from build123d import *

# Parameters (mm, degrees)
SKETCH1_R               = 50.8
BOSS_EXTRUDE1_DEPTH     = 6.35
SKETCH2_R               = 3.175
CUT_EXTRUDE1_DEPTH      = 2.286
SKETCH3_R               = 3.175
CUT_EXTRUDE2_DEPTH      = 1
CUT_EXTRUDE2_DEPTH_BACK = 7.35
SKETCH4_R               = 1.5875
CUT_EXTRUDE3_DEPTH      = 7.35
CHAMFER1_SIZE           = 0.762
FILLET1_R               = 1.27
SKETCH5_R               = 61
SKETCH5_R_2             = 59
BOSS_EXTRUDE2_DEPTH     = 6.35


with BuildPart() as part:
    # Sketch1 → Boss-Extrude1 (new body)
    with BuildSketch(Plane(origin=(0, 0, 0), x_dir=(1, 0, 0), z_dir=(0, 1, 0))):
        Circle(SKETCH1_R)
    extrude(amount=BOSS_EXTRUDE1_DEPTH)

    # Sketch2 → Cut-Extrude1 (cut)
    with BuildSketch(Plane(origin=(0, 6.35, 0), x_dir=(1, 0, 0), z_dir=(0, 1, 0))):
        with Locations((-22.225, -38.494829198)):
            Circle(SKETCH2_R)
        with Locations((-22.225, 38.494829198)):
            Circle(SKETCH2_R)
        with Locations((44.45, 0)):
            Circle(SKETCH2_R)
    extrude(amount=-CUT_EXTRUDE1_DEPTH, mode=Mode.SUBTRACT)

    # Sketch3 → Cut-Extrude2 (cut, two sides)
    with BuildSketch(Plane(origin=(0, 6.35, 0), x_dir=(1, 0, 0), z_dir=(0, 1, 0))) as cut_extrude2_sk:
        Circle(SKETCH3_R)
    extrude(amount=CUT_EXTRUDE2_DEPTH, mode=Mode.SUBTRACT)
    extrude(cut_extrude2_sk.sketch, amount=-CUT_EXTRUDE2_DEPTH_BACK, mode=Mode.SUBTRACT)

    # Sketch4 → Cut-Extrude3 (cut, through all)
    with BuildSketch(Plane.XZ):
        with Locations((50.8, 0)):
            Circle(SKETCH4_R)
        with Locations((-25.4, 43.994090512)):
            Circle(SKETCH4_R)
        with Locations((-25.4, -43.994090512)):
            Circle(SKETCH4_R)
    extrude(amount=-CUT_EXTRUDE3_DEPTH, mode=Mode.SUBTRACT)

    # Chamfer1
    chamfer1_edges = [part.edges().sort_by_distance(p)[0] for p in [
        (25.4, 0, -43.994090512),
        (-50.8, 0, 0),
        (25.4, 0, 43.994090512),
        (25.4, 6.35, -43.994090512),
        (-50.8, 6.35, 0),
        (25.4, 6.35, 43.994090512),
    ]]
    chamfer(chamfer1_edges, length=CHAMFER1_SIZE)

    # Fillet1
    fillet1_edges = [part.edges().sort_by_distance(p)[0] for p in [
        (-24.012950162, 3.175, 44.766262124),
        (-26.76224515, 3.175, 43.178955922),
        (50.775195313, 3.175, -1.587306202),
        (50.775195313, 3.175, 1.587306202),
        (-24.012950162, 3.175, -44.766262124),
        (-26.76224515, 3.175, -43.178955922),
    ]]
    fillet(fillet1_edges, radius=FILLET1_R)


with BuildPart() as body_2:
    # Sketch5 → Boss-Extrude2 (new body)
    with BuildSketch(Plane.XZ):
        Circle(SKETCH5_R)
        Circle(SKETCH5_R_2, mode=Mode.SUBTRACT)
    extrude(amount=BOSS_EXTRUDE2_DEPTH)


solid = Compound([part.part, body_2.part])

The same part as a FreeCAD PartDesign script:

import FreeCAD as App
import Part
import Sketcher
Q = App.Units.Quantity


def edges_at(feature, points):
    """Names of the edges that pass closest to the given points."""
    edges = feature.Shape.Edges
    near = lambda p: min(range(len(edges)), key=lambda i: edges[i].distToShape(Part.Vertex(*p))[0])
    return sorted({f"Edge{near(p) + 1}" for p in points})

doc = App.newDocument("Part")
params = doc.addObject("Spreadsheet::Sheet", "Params")
for row, (alias, value) in enumerate([
    ("sketch1_diameter", "4 in"),
    ("pad1_length", "0.25 in"),
    ("sketch2_diameter", "0.25 in"),
    ("pocket1_length", "0.09 in"),
    ("sketch3_diameter", "0.25 in"),
    ("sketch4_diameter", "0.125 in"),
    ("chamfer_size", "0.03 in"),
    ("fillet_radius", "0.05 in"),
    ("pad2_length", "0.25 in"),
], start=1):
    params.set(f"A{row}", alias)
    params.set(f"B{row}", "=" + value)
    params.setAlias(f"B{row}", alias)

body = doc.addObject("PartDesign::Body", "Body")

# Sketch on XZ plane
sketch1 = doc.addObject("Sketcher::SketchObject", "Sketch")
body.addObject(sketch1)
sketch1.AttachmentSupport = (doc.XZ_Plane, [""])
sketch1.MapMode = "FlatFace"
sketch1.addGeometry(Part.Circle(App.Vector(0, 0, 0), App.Vector(0, 0, 1), 51), False)
sketch1.addConstraint([
    Sketcher.Constraint("Coincident", 0, 3, -1, 1),
    Sketcher.Constraint("Diameter", 0, Q("4 in")),
])
sketch1.setExpression("Constraints[1]", "Params.sketch1_diameter")
pad1 = doc.addObject("PartDesign::Pad", "Pad")
body.addObject(pad1)
pad1.Profile = sketch1
pad1.setExpression("Length", "Params.pad1_length")
pad1.Reversed = True

# Sketch on XZ plane
sketch2 = doc.addObject("Sketcher::SketchObject", "Sketch001")
body.addObject(sketch2)
sketch2.AttachmentSupport = (doc.XZ_Plane, [""])
sketch2.MapMode = "FlatFace"
sketch2.AttachmentOffset = App.Placement(App.Vector(0, 0, -0.25 * 25.4), App.Rotation())
sketch2.addGeometry([
    Part.Circle(App.Vector(-22.2, 38.5, 0), App.Vector(0, 0, 1), 3.2),
    Part.Circle(App.Vector(-22.2, -38.5, 0), App.Vector(0, 0, 1), 3.2),
    Part.Circle(App.Vector(44.5, 0, 0), App.Vector(0, 0, 1), 3.2),
], False)
sketch2.addConstraint([
    Sketcher.Constraint("Equal", 0, 1),
    Sketcher.Constraint("Equal", 1, 2),
    Sketcher.Constraint("Symmetric", 0, 3, 1, 3, -1),
    Sketcher.Constraint("PointOnObject", 2, 3, -1),
    Sketcher.Constraint("Diameter", 0, Q("0.25 in")),
    Sketcher.Constraint("DistanceX", -1, 1, 2, 3, Q("1.75 in")),
    Sketcher.Constraint("DistanceX", 0, 3, -1, 1, Q("0.875 in")),
    Sketcher.Constraint("DistanceY", -1, 1, 0, 3, Q("38.494829 mm")),
])
sketch2.setExpression("Constraints[4]", "Params.sketch2_diameter")
pocket1 = doc.addObject("PartDesign::Pocket", "Pocket")
body.addObject(pocket1)
pocket1.Profile = sketch2
pocket1.setExpression("Length", "Params.pocket1_length")
pocket1.Reversed = True

# Sketch on XZ plane
sketch3 = doc.addObject("Sketcher::SketchObject", "Sketch002")
body.addObject(sketch3)
sketch3.AttachmentSupport = (doc.XZ_Plane, [""])
sketch3.MapMode = "FlatFace"
sketch3.AttachmentOffset = App.Placement(App.Vector(0, 0, -0.25 * 25.4), App.Rotation())
sketch3.addGeometry(Part.Circle(App.Vector(0, 0, 0), App.Vector(0, 0, 1), 3.2), False)
sketch3.addConstraint([
    Sketcher.Constraint("Coincident", 0, 3, -1, 1),
    Sketcher.Constraint("Diameter", 0, Q("0.25 in")),
])
sketch3.setExpression("Constraints[1]", "Params.sketch3_diameter")
pocket2 = doc.addObject("PartDesign::Pocket", "Pocket001")
body.addObject(pocket2)
pocket2.Profile = sketch3
pocket2.Type = "ThroughAll"
pocket2.Midplane = True

# Sketch on XZ plane
sketch4 = doc.addObject("Sketcher::SketchObject", "Sketch003")
body.addObject(sketch4)
sketch4.AttachmentSupport = (doc.XZ_Plane, [""])
sketch4.MapMode = "FlatFace"
sketch4.addGeometry([
    Part.Circle(App.Vector(50.8, 0, 0), App.Vector(0, 0, 1), 1.6),
    Part.Circle(App.Vector(-25.4, 44, 0), App.Vector(0, 0, 1), 1.6),
    Part.Circle(App.Vector(-25.4, -44, 0), App.Vector(0, 0, 1), 1.6),
], False)
sketch4.addConstraint([
    Sketcher.Constraint("Equal", 0, 1),
    Sketcher.Constraint("Equal", 1, 2),
    Sketcher.Constraint("Symmetric", 1, 3, 2, 3, -1),
    Sketcher.Constraint("PointOnObject", 0, 3, -1),
    Sketcher.Constraint("Diameter", 0, Q("0.125 in")),
    Sketcher.Constraint("DistanceX", -1, 1, 0, 3, Q("2 in")),
    Sketcher.Constraint("DistanceX", 1, 3, -1, 1, Q("1 in")),
    Sketcher.Constraint("DistanceY", -1, 1, 1, 3, Q("43.994091 mm")),
])
sketch4.setExpression("Constraints[4]", "Params.sketch4_diameter")
pocket3 = doc.addObject("PartDesign::Pocket", "Pocket002")
body.addObject(pocket3)
pocket3.Profile = sketch4
pocket3.Type = "ThroughAll"
doc.recompute()

chamfer = doc.addObject("PartDesign::Chamfer", "Chamfer")
body.addObject(chamfer)
chamfer.Base = (pocket3, edges_at(pocket3, [
    (25.4, 0, -43.994),
    (-50.8, 0, 0),
    (25.4, 0, 43.994),
    (25.4, 6.35, -43.994),
    (-50.8, 6.35, 0),
    (25.4, 6.35, 43.994),
]))
chamfer.setExpression("Size", "Params.chamfer_size")
doc.recompute()

fillet = doc.addObject("PartDesign::Fillet", "Fillet")
body.addObject(fillet)
fillet.Base = (chamfer, edges_at(chamfer, [
    (-24.013, 3.175, 44.766),
    (-26.762, 3.175, 43.179),
    (50.775, 3.175, -1.587),
    (50.775, 3.175, 1.587),
    (-24.013, 3.175, -44.766),
    (-26.762, 3.175, -43.179),
]))
fillet.setExpression("Radius", "Params.fillet_radius")
body2 = doc.addObject("PartDesign::Body", "Body001")

# Sketch on XZ plane
sketch5 = doc.addObject("Sketcher::SketchObject", "Sketch004")
body2.addObject(sketch5)
sketch5.AttachmentSupport = (doc.getObject("XZ_Plane001"), [""])
sketch5.MapMode = "FlatFace"
sketch5.addGeometry([
    Part.Circle(App.Vector(0, 0, 0), App.Vector(0, 0, 1), 61),
    Part.Circle(App.Vector(0, 0, 0), App.Vector(0, 0, 1), 59),
], False)
sketch5.addConstraint([
    Sketcher.Constraint("Coincident", 0, 3, -1, 1),
    Sketcher.Constraint("Coincident", 1, 3, -1, 1),
    Sketcher.Constraint("Diameter", 0, Q("122 mm")),
    Sketcher.Constraint("Diameter", 1, Q("118 mm")),
])
pad2 = doc.addObject("PartDesign::Pad", "Pad001")
body2.addObject(pad2)
pad2.Profile = sketch5
pad2.setExpression("Length", "Params.pad2_length")

doc.recompute()
